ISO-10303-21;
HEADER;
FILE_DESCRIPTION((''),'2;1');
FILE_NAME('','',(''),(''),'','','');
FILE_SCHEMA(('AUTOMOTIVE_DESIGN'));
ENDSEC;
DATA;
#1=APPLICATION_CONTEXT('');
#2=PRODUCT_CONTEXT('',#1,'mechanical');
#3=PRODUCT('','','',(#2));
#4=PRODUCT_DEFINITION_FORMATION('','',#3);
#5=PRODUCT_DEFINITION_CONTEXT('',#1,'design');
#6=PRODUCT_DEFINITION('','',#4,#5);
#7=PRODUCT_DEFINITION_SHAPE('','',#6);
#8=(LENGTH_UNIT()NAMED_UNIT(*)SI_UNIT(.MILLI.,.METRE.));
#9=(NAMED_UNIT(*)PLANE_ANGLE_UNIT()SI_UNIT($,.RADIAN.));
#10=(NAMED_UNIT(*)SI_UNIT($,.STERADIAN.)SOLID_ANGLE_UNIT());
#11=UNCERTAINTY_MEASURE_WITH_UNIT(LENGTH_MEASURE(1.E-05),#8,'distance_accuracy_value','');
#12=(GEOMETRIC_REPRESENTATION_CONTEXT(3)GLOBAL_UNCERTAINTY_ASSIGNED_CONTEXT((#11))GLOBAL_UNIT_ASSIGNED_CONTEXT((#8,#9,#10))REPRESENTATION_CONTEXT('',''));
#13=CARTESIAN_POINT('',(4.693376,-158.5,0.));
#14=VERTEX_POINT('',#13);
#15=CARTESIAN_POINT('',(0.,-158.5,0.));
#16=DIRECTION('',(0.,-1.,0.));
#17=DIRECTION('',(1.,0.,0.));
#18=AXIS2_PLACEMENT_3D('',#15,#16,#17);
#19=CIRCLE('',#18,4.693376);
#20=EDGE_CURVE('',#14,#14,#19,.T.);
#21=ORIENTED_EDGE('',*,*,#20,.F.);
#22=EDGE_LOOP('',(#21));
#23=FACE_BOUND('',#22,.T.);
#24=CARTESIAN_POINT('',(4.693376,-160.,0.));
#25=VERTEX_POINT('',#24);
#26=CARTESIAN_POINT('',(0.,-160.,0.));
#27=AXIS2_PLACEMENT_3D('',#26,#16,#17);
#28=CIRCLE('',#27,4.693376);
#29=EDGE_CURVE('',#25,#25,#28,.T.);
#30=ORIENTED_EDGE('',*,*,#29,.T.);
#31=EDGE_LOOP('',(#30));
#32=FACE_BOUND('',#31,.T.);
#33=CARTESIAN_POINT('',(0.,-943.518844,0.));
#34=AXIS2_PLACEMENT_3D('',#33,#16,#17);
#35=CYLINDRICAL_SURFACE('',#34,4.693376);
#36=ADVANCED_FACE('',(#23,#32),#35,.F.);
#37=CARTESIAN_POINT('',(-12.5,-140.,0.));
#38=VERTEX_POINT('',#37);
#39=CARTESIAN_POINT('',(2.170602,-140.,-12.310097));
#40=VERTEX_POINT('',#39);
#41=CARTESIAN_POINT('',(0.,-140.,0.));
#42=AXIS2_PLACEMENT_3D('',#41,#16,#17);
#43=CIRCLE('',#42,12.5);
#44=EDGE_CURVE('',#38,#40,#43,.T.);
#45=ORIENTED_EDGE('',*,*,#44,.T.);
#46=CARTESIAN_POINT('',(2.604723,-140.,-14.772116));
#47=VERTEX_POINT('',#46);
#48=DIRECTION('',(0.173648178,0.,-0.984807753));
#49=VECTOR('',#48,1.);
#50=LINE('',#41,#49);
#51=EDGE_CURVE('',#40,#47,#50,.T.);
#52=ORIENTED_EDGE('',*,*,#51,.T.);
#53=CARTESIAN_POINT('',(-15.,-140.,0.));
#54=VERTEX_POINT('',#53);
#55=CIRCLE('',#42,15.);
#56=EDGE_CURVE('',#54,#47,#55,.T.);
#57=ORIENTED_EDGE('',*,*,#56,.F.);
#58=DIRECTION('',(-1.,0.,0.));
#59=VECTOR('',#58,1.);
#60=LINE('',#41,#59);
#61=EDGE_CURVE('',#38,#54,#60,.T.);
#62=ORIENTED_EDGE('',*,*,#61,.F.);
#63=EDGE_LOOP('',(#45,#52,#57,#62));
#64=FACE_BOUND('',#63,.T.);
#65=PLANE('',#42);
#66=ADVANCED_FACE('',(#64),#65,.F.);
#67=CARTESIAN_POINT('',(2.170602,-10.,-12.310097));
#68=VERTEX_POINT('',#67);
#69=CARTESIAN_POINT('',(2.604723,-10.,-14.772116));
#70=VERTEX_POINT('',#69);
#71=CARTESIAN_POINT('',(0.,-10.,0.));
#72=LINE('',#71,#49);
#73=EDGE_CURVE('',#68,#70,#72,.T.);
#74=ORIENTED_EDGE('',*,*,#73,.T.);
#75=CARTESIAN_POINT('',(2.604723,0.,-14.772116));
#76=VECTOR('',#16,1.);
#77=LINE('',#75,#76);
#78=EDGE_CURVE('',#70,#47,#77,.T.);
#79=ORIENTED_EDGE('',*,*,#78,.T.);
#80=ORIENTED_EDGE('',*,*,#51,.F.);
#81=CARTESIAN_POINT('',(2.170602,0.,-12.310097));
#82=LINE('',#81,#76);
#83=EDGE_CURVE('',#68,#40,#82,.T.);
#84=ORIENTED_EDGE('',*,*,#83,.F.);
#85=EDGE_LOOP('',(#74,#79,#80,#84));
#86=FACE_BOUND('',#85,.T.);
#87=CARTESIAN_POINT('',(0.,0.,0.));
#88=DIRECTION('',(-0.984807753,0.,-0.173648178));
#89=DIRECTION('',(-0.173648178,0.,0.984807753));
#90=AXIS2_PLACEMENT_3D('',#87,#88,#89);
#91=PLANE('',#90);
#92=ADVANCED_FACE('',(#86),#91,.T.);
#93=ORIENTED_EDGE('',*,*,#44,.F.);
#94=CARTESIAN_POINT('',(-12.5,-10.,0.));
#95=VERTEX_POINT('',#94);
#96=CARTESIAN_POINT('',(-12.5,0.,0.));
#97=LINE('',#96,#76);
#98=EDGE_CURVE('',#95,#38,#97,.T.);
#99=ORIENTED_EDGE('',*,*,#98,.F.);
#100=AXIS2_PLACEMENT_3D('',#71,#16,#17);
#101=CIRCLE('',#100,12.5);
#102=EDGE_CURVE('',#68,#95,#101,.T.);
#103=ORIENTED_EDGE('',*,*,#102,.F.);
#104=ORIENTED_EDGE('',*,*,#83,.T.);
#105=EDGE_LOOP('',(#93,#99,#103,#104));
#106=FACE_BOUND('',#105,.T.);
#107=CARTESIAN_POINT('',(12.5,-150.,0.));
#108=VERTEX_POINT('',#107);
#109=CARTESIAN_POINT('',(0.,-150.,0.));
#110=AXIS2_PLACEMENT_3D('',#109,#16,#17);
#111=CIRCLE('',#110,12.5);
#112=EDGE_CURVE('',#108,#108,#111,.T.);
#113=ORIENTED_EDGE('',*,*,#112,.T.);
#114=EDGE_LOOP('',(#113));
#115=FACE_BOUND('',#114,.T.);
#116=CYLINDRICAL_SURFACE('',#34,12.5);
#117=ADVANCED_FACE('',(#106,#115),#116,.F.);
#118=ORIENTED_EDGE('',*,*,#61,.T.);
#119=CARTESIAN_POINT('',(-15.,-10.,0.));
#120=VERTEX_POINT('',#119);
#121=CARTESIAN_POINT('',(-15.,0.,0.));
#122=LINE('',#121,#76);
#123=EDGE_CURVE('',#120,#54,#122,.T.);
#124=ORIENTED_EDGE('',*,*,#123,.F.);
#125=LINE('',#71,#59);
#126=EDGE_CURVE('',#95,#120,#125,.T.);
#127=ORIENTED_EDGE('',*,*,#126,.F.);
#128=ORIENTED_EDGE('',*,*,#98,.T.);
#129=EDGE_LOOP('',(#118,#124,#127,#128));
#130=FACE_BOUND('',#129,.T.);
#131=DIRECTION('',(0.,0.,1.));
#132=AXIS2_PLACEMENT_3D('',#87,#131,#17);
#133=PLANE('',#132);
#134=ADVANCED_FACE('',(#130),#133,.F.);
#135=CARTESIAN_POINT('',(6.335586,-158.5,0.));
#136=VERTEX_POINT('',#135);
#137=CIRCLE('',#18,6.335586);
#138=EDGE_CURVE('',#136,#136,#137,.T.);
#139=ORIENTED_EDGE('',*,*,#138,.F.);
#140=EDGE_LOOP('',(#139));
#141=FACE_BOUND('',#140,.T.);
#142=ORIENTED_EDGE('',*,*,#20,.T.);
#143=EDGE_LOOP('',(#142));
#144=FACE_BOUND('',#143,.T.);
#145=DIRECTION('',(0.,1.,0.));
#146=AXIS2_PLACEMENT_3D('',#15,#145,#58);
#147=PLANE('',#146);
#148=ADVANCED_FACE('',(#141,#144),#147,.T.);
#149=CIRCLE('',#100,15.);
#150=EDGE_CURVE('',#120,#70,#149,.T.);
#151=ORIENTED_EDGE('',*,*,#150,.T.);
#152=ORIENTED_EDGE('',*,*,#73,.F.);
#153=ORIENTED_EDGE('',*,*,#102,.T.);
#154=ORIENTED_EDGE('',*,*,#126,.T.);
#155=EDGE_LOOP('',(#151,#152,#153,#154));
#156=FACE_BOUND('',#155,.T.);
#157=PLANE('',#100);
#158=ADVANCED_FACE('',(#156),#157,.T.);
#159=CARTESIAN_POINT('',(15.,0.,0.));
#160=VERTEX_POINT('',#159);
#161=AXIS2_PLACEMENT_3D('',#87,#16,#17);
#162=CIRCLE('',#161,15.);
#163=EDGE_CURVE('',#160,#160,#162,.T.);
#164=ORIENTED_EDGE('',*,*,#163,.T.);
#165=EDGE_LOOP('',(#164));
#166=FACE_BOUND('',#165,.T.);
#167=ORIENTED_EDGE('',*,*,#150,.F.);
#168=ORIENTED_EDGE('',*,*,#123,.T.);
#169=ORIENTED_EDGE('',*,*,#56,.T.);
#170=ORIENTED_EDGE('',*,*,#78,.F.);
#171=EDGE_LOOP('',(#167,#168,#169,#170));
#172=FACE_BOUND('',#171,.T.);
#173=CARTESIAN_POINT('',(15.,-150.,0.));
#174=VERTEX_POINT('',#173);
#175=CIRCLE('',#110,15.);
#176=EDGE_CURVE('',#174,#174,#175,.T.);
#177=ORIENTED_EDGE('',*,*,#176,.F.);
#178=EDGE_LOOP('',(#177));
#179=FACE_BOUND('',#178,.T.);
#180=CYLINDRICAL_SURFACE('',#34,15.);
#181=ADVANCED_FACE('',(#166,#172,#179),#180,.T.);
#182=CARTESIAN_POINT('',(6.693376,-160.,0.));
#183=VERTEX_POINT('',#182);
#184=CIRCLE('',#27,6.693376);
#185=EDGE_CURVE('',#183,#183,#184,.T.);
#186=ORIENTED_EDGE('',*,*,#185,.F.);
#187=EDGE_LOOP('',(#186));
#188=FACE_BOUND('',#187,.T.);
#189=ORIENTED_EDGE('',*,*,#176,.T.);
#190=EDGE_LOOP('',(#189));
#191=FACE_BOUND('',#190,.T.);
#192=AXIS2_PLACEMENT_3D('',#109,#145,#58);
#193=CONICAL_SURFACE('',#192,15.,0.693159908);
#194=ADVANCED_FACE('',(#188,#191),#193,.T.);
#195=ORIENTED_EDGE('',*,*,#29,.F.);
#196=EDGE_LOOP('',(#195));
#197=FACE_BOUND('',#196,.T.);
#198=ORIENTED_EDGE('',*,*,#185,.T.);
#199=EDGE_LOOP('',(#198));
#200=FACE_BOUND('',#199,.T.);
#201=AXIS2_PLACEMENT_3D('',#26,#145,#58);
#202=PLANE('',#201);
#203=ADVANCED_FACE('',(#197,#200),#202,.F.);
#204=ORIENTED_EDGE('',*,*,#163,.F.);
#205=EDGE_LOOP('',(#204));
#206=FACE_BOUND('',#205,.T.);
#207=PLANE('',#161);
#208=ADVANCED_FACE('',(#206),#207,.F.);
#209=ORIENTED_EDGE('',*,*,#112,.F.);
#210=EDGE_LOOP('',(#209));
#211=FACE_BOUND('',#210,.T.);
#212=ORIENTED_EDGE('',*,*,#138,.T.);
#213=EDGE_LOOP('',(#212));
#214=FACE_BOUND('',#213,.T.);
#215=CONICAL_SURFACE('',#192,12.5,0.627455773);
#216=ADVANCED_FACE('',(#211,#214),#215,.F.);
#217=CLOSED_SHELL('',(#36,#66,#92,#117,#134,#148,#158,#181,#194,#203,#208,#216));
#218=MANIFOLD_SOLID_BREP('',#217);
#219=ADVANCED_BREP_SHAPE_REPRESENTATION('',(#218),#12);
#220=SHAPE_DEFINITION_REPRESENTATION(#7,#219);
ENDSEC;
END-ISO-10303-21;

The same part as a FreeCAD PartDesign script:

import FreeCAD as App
import Part
import Sketcher


def add_polygon(sketch, points):
    """Adds a closed chain of lines whose ends are joined by coincident constraints."""
    first, n = sketch.GeometryCount, len(points)
    for a, b in zip(points, points[1:] + points[:1]):
        sketch.addGeometry(Part.LineSegment(App.Vector(*a, 0), App.Vector(*b, 0)), False)
    for i in range(n):
        sketch.addConstraint(Sketcher.Constraint("Coincident", first + i, 2, first + (i + 1) % n, 1))

doc = App.newDocument("Part")
body = doc.addObject("PartDesign::Body", "Body")
body.AllowCompound = True

sketch1 = doc.addObject("Sketcher::SketchObject", "Sketch")
body.addObject(sketch1)
sketch1.AttachmentSupport = (doc.XY_Plane, [""])
sketch1.MapMode = "FlatFace"
add_polygon(sketch1, [(0, -10), (0, 0), (-15, 0), (-15, -10)])
add_polygon(sketch1, [(-12.5, -150), (-12.5, -140), (-15, -140), (-15, -150), (-6.7, -160), (-4.7, -160), (-4.7, -158.5), (-6.3, -158.5)])
sketch1.addConstraint(Sketcher.Constraint("Vertical", 0))
sketch1.addConstraint(Sketcher.Constraint("Horizontal", 1))
sketch1.addConstraint(Sketcher.Constraint("Vertical", 2))
sketch1.addConstraint(Sketcher.Constraint("Horizontal", 3))
sketch1.addConstraint(Sketcher.Constraint("Vertical", 4))
sketch1.addConstraint(Sketcher.Constraint("Horizontal", 5))
sketch1.addConstraint(Sketcher.Constraint("Vertical", 6))
sketch1.addConstraint(Sketcher.Constraint("Horizontal", 8))
sketch1.addConstraint(Sketcher.Constraint("Vertical", 9))
sketch1.addConstraint(Sketcher.Constraint("Horizontal", 10))
sketch1.addConstraint(Sketcher.Constraint("Coincident", 0, 2, -1, 1))
sketch1.addConstraint(Sketcher.Constraint("Horizontal", 6, 2, 11, 2))
sketch1.addConstraint(Sketcher.Constraint("Vertical", 2, 2, 5, 2))
sketch1.addConstraint(Sketcher.Constraint("Equal", 2, 4))
sketch1.addConstraint(Sketcher.Constraint("DistanceX", 1, 2, 1, 1, 15.0))
sketch1.addConstraint(Sketcher.Constraint("DistanceX", 8, 1, 8, 2, 2.0))
sketch1.addConstraint(Sketcher.Constraint("DistanceY", 0, 1, 0, 2, 10.0))
sketch1.addConstraint(Sketcher.Constraint("Distance", 7, 13.0))
sketch1.addConstraint(Sketcher.Constraint("DistanceX", 5, 2, 5, 1, 2.5))
sketch1.addConstraint(Sketcher.Constraint("DistanceY", 9, 1, 9, 2, 1.5))
sketch1.addConstraint(Sketcher.Constraint("DistanceY", 4, 2, -1, 1, 140.0))
sketch1.addConstraint(Sketcher.Constraint("DistanceY", 7, 2, -1, 1, 160.0))
sketch1.addConstraint(Sketcher.Constraint("Distance", 11, 10.5))
revolution = doc.addObject("PartDesign::Revolution", "Revolution")
body.addObject(revolution)
revolution.Profile = sketch1
revolution.ReferenceAxis = (sketch1, ["V_Axis"])
revolution.Angle = 360

sketch2 = doc.addObject("Sketcher::SketchObject", "Sketch001")
body.addObject(sketch2)
sketch2.AttachmentSupport = (doc.XY_Plane, [""])
sketch2.MapMode = "FlatFace"
add_polygon(sketch2, [(-12.5, -10), (-15, -10), (-15, -140), (-12.5, -140)])
sketch2.addConstraint(Sketcher.Constraint("Horizontal", 0))
sketch2.addConstraint(Sketcher.Constraint("Vertical", 1))
sketch2.addConstraint(Sketcher.Constraint("Horizontal", 2))
sketch2.addConstraint(Sketcher.Constraint("Vertical", 3))
sketch2.addConstraint(Sketcher.Constraint("DistanceY", 1, 2, 1, 1, 130.0))
sketch2.addConstraint(Sketcher.Constraint("DistanceX", 0, 2, 0, 1, 2.5))
sketch2.addConstraint(Sketcher.Constraint("DistanceX", 0, 2, -1, 1, 15.0))
sketch2.addConstraint(Sketcher.Constraint("DistanceY", 0, 2, -1, 1, 10.0))
revolution2 = doc.addObject("PartDesign::Revolution", "Revolution001")
body.addObject(revolution2)
revolution2.Profile = sketch2
revolution2.ReferenceAxis = (sketch2, ["V_Axis"])
revolution2.Angle = 260

doc.recompute()
